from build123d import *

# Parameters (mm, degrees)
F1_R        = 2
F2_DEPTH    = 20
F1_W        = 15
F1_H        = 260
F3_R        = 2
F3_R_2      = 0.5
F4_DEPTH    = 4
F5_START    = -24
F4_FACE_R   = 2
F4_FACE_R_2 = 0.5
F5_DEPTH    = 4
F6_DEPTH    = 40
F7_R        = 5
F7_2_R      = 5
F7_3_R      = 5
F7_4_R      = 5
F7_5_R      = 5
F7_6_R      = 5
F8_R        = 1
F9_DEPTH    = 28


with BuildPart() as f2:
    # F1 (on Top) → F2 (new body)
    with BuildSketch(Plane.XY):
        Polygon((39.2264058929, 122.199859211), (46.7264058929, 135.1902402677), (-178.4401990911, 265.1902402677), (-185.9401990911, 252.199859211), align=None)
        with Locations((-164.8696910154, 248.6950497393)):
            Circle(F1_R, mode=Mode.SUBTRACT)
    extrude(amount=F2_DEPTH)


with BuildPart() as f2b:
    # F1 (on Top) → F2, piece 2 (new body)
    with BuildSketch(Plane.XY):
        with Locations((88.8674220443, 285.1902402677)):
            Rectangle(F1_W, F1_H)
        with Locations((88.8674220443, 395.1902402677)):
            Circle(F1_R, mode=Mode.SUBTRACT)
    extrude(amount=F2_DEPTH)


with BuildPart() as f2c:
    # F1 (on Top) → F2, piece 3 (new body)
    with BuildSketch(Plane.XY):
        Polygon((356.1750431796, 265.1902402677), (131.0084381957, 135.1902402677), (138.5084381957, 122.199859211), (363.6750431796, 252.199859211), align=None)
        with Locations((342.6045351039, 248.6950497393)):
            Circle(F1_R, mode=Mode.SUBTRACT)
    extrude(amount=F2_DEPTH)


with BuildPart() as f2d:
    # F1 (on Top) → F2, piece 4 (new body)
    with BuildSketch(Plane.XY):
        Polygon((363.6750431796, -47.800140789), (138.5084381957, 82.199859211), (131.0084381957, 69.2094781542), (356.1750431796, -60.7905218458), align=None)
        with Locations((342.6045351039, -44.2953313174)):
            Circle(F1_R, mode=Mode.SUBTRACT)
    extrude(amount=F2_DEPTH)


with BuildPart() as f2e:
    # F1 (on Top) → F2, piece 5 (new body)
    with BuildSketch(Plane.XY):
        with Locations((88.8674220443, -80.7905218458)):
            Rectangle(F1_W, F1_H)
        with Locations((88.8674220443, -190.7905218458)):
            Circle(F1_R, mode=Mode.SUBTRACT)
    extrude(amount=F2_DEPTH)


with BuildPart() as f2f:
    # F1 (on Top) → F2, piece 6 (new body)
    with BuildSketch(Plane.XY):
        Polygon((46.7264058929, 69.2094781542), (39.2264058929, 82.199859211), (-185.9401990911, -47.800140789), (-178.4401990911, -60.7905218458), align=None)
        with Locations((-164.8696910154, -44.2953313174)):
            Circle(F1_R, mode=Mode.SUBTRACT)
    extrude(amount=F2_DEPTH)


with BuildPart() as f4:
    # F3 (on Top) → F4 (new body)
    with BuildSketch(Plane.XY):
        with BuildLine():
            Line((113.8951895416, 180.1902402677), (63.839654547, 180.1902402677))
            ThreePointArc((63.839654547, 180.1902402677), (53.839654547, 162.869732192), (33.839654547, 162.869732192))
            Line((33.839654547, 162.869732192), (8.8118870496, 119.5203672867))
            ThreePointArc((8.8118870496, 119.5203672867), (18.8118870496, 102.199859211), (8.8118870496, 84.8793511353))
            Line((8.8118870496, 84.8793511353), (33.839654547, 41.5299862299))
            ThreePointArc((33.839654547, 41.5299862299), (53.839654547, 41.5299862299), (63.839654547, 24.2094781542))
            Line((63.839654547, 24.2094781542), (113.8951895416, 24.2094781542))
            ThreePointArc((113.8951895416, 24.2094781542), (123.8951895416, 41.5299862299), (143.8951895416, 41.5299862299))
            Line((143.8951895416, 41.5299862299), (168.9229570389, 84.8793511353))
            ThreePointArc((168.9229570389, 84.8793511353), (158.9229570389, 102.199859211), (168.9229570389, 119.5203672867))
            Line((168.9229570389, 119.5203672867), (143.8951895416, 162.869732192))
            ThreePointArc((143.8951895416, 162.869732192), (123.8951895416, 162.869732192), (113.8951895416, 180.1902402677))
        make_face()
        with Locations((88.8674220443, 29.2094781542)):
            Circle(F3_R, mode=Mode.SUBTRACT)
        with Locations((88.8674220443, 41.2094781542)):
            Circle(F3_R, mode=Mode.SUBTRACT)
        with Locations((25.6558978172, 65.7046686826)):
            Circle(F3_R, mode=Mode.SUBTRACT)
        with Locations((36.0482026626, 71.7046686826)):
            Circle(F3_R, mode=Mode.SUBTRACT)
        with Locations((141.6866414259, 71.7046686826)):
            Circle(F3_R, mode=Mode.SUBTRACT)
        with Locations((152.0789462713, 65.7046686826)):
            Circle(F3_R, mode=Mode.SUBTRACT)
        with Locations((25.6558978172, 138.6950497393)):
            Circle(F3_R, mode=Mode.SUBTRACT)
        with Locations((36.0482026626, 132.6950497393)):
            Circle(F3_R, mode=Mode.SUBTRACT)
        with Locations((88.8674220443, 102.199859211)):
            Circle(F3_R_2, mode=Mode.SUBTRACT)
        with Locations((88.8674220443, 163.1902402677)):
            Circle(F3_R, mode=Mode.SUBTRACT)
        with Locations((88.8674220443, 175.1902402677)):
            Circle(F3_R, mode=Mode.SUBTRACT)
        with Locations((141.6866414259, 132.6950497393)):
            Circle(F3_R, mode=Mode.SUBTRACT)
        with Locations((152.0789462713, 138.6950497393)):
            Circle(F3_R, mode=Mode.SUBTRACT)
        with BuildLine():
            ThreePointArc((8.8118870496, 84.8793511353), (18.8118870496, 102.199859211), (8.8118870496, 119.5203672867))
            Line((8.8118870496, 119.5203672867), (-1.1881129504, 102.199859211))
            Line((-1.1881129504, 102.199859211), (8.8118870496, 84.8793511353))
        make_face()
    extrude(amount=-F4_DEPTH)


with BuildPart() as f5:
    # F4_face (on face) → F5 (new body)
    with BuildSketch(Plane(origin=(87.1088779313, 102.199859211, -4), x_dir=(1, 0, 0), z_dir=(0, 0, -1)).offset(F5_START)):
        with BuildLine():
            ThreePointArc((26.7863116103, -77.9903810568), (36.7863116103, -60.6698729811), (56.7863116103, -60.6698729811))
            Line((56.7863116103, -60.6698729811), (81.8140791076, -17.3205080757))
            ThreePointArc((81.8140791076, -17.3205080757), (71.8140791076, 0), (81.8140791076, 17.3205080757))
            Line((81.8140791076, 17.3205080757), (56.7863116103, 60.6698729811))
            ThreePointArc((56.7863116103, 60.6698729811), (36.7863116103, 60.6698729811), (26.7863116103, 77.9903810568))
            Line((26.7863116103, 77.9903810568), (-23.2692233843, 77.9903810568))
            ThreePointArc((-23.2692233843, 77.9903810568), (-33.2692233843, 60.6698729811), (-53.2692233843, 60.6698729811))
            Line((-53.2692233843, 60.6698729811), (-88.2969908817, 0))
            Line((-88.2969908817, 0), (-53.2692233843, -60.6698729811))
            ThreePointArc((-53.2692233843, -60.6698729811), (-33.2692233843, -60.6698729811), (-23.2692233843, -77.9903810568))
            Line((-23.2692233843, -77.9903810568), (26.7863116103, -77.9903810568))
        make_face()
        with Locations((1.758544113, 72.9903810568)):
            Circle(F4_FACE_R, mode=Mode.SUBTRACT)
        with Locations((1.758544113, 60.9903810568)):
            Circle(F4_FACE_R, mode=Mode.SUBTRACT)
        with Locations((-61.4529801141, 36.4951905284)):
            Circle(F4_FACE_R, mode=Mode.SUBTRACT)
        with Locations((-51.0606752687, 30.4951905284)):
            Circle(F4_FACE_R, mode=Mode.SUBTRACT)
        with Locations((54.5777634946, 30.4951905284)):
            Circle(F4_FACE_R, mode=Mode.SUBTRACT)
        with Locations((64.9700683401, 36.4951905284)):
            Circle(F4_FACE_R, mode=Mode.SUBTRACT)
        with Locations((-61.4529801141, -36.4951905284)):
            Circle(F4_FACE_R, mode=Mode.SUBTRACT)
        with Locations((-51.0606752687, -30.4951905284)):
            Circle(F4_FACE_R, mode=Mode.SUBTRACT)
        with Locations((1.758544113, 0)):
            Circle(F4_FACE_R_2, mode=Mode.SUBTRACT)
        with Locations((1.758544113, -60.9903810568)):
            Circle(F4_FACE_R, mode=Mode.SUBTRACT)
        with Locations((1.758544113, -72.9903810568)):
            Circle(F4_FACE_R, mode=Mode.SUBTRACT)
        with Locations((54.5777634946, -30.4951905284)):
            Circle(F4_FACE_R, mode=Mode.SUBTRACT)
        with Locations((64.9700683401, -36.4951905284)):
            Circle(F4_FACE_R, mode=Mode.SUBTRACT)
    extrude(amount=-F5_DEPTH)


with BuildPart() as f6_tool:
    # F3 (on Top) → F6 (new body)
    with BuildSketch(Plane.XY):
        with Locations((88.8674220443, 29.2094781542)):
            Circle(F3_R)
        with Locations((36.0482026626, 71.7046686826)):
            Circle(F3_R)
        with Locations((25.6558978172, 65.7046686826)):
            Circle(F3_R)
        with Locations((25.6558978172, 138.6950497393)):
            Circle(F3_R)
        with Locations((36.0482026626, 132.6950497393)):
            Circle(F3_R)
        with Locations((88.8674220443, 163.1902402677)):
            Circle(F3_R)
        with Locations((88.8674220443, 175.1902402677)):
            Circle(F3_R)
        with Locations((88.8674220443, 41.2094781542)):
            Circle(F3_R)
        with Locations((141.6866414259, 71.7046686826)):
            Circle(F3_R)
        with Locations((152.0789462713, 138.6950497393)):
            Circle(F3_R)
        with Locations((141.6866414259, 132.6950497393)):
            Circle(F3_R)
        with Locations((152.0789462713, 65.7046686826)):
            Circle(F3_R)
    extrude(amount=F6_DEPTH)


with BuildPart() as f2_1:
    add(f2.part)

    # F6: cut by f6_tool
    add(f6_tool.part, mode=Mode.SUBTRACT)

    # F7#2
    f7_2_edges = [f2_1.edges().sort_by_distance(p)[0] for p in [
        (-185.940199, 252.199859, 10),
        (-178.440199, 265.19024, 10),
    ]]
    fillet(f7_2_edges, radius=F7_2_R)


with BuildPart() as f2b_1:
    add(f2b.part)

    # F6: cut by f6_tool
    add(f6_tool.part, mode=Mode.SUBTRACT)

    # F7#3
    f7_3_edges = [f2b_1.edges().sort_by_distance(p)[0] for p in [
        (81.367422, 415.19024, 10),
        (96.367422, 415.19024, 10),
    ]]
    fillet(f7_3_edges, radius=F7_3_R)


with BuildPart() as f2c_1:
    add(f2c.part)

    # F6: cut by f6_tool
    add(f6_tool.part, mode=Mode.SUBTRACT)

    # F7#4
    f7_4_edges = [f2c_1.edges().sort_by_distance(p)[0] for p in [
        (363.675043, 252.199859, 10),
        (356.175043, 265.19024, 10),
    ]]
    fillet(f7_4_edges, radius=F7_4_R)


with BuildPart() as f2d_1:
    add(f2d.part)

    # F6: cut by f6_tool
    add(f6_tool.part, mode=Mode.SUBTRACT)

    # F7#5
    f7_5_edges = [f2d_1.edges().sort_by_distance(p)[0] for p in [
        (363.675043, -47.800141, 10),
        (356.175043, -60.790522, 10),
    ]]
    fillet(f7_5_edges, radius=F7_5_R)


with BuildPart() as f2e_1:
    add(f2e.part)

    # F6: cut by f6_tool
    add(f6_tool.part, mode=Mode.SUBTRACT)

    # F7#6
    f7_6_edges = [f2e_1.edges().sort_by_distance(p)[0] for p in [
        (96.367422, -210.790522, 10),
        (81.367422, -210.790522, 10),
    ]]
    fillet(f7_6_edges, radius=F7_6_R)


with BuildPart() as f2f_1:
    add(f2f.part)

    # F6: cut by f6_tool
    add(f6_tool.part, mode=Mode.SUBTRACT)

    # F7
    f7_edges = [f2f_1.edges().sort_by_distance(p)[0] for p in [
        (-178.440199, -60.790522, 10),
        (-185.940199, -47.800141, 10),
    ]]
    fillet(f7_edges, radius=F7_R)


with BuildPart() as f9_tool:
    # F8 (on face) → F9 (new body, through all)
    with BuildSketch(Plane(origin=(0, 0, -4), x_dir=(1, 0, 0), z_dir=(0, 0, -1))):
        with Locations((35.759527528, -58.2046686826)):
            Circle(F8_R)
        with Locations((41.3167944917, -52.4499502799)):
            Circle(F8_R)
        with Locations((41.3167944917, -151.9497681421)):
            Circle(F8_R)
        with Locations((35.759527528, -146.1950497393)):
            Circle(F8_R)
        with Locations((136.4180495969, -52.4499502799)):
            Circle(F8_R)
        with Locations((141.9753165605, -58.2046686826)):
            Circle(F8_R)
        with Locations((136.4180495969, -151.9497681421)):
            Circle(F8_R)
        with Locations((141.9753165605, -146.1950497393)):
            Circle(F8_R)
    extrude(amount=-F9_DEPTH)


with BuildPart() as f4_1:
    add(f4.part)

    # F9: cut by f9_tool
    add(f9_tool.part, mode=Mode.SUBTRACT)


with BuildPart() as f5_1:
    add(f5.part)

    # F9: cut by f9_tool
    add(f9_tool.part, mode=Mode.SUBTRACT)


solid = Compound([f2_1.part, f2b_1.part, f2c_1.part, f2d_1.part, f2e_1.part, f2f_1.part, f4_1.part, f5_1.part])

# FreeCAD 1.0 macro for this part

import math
import FreeCAD as App
import Part
import Sketcher

V = App.Vector
Q = App.Units.Quantity


def edges_at(feature, points):
    """Names of the edges that pass closest to the given points."""
    edges = feature.Shape.Edges
    near = lambda p: min(range(len(edges)), key=lambda i: edges[i].distToShape(Part.Vertex(*p))[0])
    return sorted({f"Edge{near(p) + 1}" for p in points})

doc = App.newDocument("Part")
body = doc.addObject("PartDesign::Body", "Body")

sketch1 = doc.addObject("Sketcher::SketchObject", "Sketch")
body.addObject(sketch1)
sketch1.AttachmentSupport = (doc.XY_Plane, [""])
sketch1.MapMode = "FlatFace"
sketch1.addGeometry([
    Part.LineSegment(V(39.226406, 122.199859, 0), V(46.726406, 135.19024, 0)),
    Part.LineSegment(V(46.726406, 135.19024, 0), V(-178.440199, 265.19024, 0)),
    Part.LineSegment(V(-178.440199, 265.19024, 0), V(-185.940199, 252.199859, 0)),
    Part.LineSegment(V(-185.940199, 252.199859, 0), V(39.226406, 122.199859, 0)),
    Part.Circle(V(-164.869691, 248.69505, 0), V(0, 0, 1), 2),
], False)
sketch1.addConstraint([
    Sketcher.Constraint("Coincident", 0, 2, 1, 1),
    Sketcher.Constraint("Coincident", 1, 2, 2, 1),
    Sketcher.Constraint("Coincident", 2, 2, 3, 1),
    Sketcher.Constraint("Coincident", 3, 2, 0, 1),
    Sketcher.Constraint("Perpendicular", 0, 1),
    Sketcher.Constraint("Perpendicular", 1, 2),
    Sketcher.Constraint("Perpendicular", 2, 3),
    Sketcher.Constraint("Diameter", 4, Q("4 mm")),
    Sketcher.Constraint("Angle", 0, Q("60 deg")),
    Sketcher.Constraint("Distance", 0, Q("15 mm")),
    Sketcher.Constraint("Distance", 1, Q("260 mm")),
    Sketcher.Constraint("DistanceX", 1, 2, -1, 1, Q("178.440199 mm")),
    Sketcher.Constraint("DistanceX", 4, 3, -1, 1, Q("164.869691 mm")),
    Sketcher.Constraint("DistanceY", -1, 1, 4, 3, Q("248.69505 mm")),
    Sketcher.Constraint("DistanceY", -1, 1, 0, 2, Q("135.19024 mm")),
])
pad1 = doc.addObject("PartDesign::Pad", "Pad")
body.addObject(pad1)
pad1.Profile = sketch1
pad1.Length = 20
body2 = doc.addObject("PartDesign::Body", "Body001")

sketch2 = doc.addObject("Sketcher::SketchObject", "Sketch001")
body2.addObject(sketch2)
sketch2.AttachmentSupport = (doc.getObject("XY_Plane001"), [""])
sketch2.MapMode = "FlatFace"
sketch2.addGeometry([
    Part.LineSegment(V(81.367422, 415.19024, 0), V(81.367422, 155.19024, 0)),
    Part.LineSegment(V(81.367422, 155.19024, 0), V(96.367422, 155.19024, 0)),
    Part.LineSegment(V(96.367422, 155.19024, 0), V(96.367422, 415.19024, 0)),
    Part.LineSegment(V(96.367422, 415.19024, 0), V(81.367422, 415.19024, 0)),
    Part.Circle(V(88.867422, 395.19024, 0), V(0, 0, 1), 2),
], False)
sketch2.addConstraint([
    Sketcher.Constraint("Coincident", 0, 2, 1, 1),
    Sketcher.Constraint("Coincident", 1, 2, 2, 1),
    Sketcher.Constraint("Coincident", 2, 2, 3, 1),
    Sketcher.Constraint("Coincident", 3, 2, 0, 1),
    Sketcher.Constraint("Vertical", 0),
    Sketcher.Constraint("Horizontal", 1),
    Sketcher.Constraint("Vertical", 2),
    Sketcher.Constraint("Horizontal", 3),
    Sketcher.Constraint("Diameter", 4, Q("4 mm")),
    Sketcher.Constraint("DistanceX", 1, 1, 1, 2, Q("15 mm")),
    Sketcher.Constraint("DistanceY", 0, 2, 0, 1, Q("260 mm")),
    Sketcher.Constraint("DistanceY", 0, 2, 4, 3, Q("240 mm")),
    Sketcher.Constraint("DistanceX", 0, 2, 4, 3, Q("7.5 mm")),
    Sketcher.Constraint("DistanceY", -1, 1, 4, 3, Q("395.19024 mm")),
    Sketcher.Constraint("DistanceX", -1, 1, 4, 3, Q("88.867422 mm")),
])
pad2 = doc.addObject("PartDesign::Pad", "Pad001")
body2.addObject(pad2)
pad2.Profile = sketch2
pad2.Length = 20
body3 = doc.addObject("PartDesign::Body", "Body002")

sketch3 = doc.addObject("Sketcher::SketchObject", "Sketch002")
body3.addObject(sketch3)
sketch3.AttachmentSupport = (doc.getObject("XY_Plane002"), [""])
sketch3.MapMode = "FlatFace"
sketch3.addGeometry([
    Part.LineSegment(V(356.175043, 265.19024, 0), V(131.008438, 135.19024, 0)),
    Part.LineSegment(V(131.008438, 135.19024, 0), V(138.508438, 122.199859, 0)),
    Part.LineSegment(V(138.508438, 122.199859, 0), V(363.675043, 252.199859, 0)),
    Part.LineSegment(V(363.675043, 252.199859, 0), V(356.175043, 265.19024, 0)),
    Part.Circle(V(342.604535, 248.69505, 0), V(0, 0, 1), 2),
], False)
sketch3.addConstraint([
    Sketcher.Constraint("Coincident", 0, 2, 1, 1),
    Sketcher.Constraint("Coincident", 1, 2, 2, 1),
    Sketcher.Constraint("Coincident", 2, 2, 3, 1),
    Sketcher.Constraint("Coincident", 3, 2, 0, 1),
    Sketcher.Constraint("Perpendicular", 0, 1),
    Sketcher.Constraint("Perpendicular", 1, 2),
    Sketcher.Constraint("Perpendicular", 2, 3),
    Sketcher.Constraint("Diameter", 4, Q("4 mm")),
    Sketcher.Constraint("Angle", 0, Q("-150 deg")),
    Sketcher.Constraint("Distance", 0, Q("260 mm")),
    Sketcher.Constraint("Distance", 1, Q("15 mm")),
    Sketcher.Constraint("DistanceY", -1, 1, 4, 3, Q("248.69505 mm")),
    Sketcher.Constraint("DistanceX", -1, 1, 0, 2, Q("131.008438 mm")),
    Sketcher.Constraint("DistanceY", -1, 1, 0, 2, Q("135.19024 mm")),
    Sketcher.Constraint("DistanceX", 4, 3, 2, 2, Q("21.070508 mm")),
])
pad3 = doc.addObject("PartDesign::Pad", "Pad002")
body3.addObject(pad3)
pad3.Profile = sketch3
pad3.Length = 20
body4 = doc.addObject("PartDesign::Body", "Body003")

sketch4 = doc.addObject("Sketcher::SketchObject", "Sketch003")
body4.addObject(sketch4)
sketch4.AttachmentSupport = (doc.getObject("XY_Plane003"), [""])
sketch4.MapMode = "FlatFace"
sketch4.addGeometry([
    Part.LineSegment(V(363.675043, -47.800141, 0), V(138.508438, 82.199859, 0)),
    Part.LineSegment(V(138.508438, 82.199859, 0), V(131.008438, 69.209478, 0)),
    Part.LineSegment(V(131.008438, 69.209478, 0), V(356.175043, -60.790522, 0)),
    Part.LineSegment(V(356.175043, -60.790522, 0), V(363.675043, -47.800141, 0)),
    Part.Circle(V(342.604535, -44.295331, 0), V(0, 0, 1), 2),
], False)
sketch4.addConstraint([
    Sketcher.Constraint("Coincident", 0, 2, 1, 1),
    Sketcher.Constraint("Coincident", 1, 2, 2, 1),
    Sketcher.Constraint("Coincident", 2, 2, 3, 1),
    Sketcher.Constraint("Coincident", 3, 2, 0, 1),
    Sketcher.Constraint("Perpendicular", 0, 1),
    Sketcher.Constraint("Perpendicular", 1, 2),
    Sketcher.Constraint("Perpendicular", 2, 3),
    Sketcher.Constraint("Diameter", 4, Q("4 mm")),
    Sketcher.Constraint("Angle", 0, Q("150 deg")),
    Sketcher.Constraint("Distance", 0, Q("260 mm")),
    Sketcher.Constraint("Distance", 1, Q("15 mm")),
    Sketcher.Constraint("DistanceY", 4, 3, -1, 1, Q("44.295331 mm")),
    Sketcher.Constraint("DistanceX", -1, 1, 0, 2, Q("138.508438 mm")),
    Sketcher.Constraint("DistanceY", -1, 1, 0, 2, Q("82.199859 mm")),
    Sketcher.Constraint("DistanceX", 4, 3, 2, 2, Q("13.570508 mm")),
])
pad4 = doc.addObject("PartDesign::Pad", "Pad003")
body4.addObject(pad4)
pad4.Profile = sketch4
pad4.Length = 20
body5 = doc.addObject("PartDesign::Body", "Body004")

sketch5 = doc.addObject("Sketcher::SketchObject", "Sketch004")
body5.addObject(sketch5)
sketch5.AttachmentSupport = (doc.getObject("XY_Plane004"), [""])
sketch5.MapMode = "FlatFace"
sketch5.addGeometry([
    Part.LineSegment(V(81.367422, 49.209478, 0), V(81.367422, -210.790522, 0)),
    Part.LineSegment(V(81.367422, -210.790522, 0), V(96.367422, -210.790522, 0)),
    Part.LineSegment(V(96.367422, -210.790522, 0), V(96.367422, 49.209478, 0)),
    Part.LineSegment(V(96.367422, 49.209478, 0), V(81.367422, 49.209478, 0)),
    Part.Circle(V(88.867422, -190.790522, 0), V(0, 0, 1), 2),
], False)
sketch5.addConstraint([
    Sketcher.Constraint("Coincident", 0, 2, 1, 1),
    Sketcher.Constraint("Coincident", 1, 2, 2, 1),
    Sketcher.Constraint("Coincident", 2, 2, 3, 1),
    Sketcher.Constraint("Coincident", 3, 2, 0, 1),
    Sketcher.Constraint("Vertical", 0),
    Sketcher.Constraint("Horizontal", 1),
    Sketcher.Constraint("Vertical", 2),
    Sketcher.Constraint("Horizontal", 3),
    Sketcher.Constraint("Diameter", 4, Q("4 mm")),
    Sketcher.Constraint("DistanceX", 1, 1, 1, 2, Q("15 mm")),
    Sketcher.Constraint("DistanceY", 0, 2, 0, 1, Q("260 mm")),
    Sketcher.Constraint("DistanceY", 0, 2, 4, 3, Q("20 mm")),
    Sketcher.Constraint("DistanceX", 0, 2, 4, 3, Q("7.5 mm")),
    Sketcher.Constraint("DistanceY", 4, 3, -1, 1, Q("190.790522 mm")),
    Sketcher.Constraint("DistanceX", -1, 1, 4, 3, Q("88.867422 mm")),
])
pad5 = doc.addObject("PartDesign::Pad", "Pad004")
body5.addObject(pad5)
pad5.Profile = sketch5
pad5.Length = 20
body6 = doc.addObject("PartDesign::Body", "Body005")

sketch6 = doc.addObject("Sketcher::SketchObject", "Sketch005")
body6.addObject(sketch6)
sketch6.AttachmentSupport = (doc.getObject("XY_Plane005"), [""])
sketch6.MapMode = "FlatFace"
sketch6.addGeometry([
    Part.LineSegment(V(46.726406, 69.209478, 0), V(39.226406, 82.199859, 0)),
    Part.LineSegment(V(39.226406, 82.199859, 0), V(-185.940199, -47.800141, 0)),
    Part.LineSegment(V(-185.940199, -47.800141, 0), V(-178.440199, -60.790522, 0)),
    Part.LineSegment(V(-178.440199, -60.790522, 0), V(46.726406, 69.209478, 0)),
    Part.Circle(V(-164.869691, -44.295331, 0), V(0, 0, 1), 2),
], False)
sketch6.addConstraint([
    Sketcher.Constraint("Coincident", 0, 2, 1, 1),
    Sketcher.Constraint("Coincident", 1, 2, 2, 1),
    Sketcher.Constraint("Coincident", 2, 2, 3, 1),
    Sketcher.Constraint("Coincident", 3, 2, 0, 1),
    Sketcher.Constraint("Perpendicular", 0, 1),
    Sketcher.Constraint("Perpendicular", 1, 2),
    Sketcher.Constraint("Perpendicular", 2, 3),
    Sketcher.Constraint("Diameter", 4, Q("4 mm")),
    Sketcher.Constraint("Angle", 0, Q("120 deg")),
    Sketcher.Constraint("Distance", 0, Q("15 mm")),
    Sketcher.Constraint("Distance", 1, Q("260 mm")),
    Sketcher.Constraint("DistanceX", 1, 2, -1, 1, Q("185.940199 mm")),
    Sketcher.Constraint("DistanceX", 4, 3, -1, 1, Q("164.869691 mm")),
    Sketcher.Constraint("DistanceY", 4, 3, -1, 1, Q("44.295331 mm")),
    Sketcher.Constraint("DistanceY", -1, 1, 0, 2, Q("82.199859 mm")),
])
pad6 = doc.addObject("PartDesign::Pad", "Pad005")
body6.addObject(pad6)
pad6.Profile = sketch6
pad6.Length = 20
body7 = doc.addObject("PartDesign::Body", "Body006")

sketch7 = doc.addObject("Sketcher::SketchObject", "Sketch006")
body7.addObject(sketch7)
sketch7.AttachmentSupport = (doc.getObject("XY_Plane006"), [""])
sketch7.MapMode = "FlatFace"
sketch7.addGeometry([
    Part.LineSegment(V(113.89519, 180.19024, 0), V(63.839655, 180.19024, 0)),
    Part.ArcOfCircle(Part.Circle(V(43.839655, 180.19024, 0), V(0, 0, 1), 20), math.radians(-120), math.radians(0)),
    Part.LineSegment(V(33.839655, 162.869732, 0), V(8.811887, 119.520367, 0)),
    Part.LineSegment(V(8.811887, 119.520367, 0), V(-1.188113, 102.199859, 0)),
    Part.LineSegment(V(-1.188113, 102.199859, 0), V(8.811887, 84.879351, 0)),
    Part.LineSegment(V(8.811887, 84.879351, 0), V(33.839655, 41.529986, 0)),
    Part.ArcOfCircle(Part.Circle(V(43.839655, 24.209478, 0), V(0, 0, 1), 20), math.radians(0), math.radians(120)),
    Part.LineSegment(V(63.839655, 24.209478, 0), V(113.89519, 24.209478, 0)),
    Part.ArcOfCircle(Part.Circle(V(133.89519, 24.209478, 0), V(0, 0, 1), 20), math.radians(60), math.radians(180)),
    Part.LineSegment(V(143.89519, 41.529986, 0), V(168.922957, 84.879351, 0)),
    Part.ArcOfCircle(Part.Circle(V(178.922957, 102.199859, 0), V(0, 0, 1), 20), math.radians(120), math.radians(240)),
    Part.LineSegment(V(168.922957, 119.520367, 0), V(143.89519, 162.869732, 0)),
    Part.ArcOfCircle(Part.Circle(V(133.89519, 180.19024, 0), V(0, 0, 1), 20), math.radians(180), math.radians(300)),
    Part.Circle(V(25.655898, 65.704669, 0), V(0, 0, 1), 2),
    Part.Circle(V(36.048203, 71.704669, 0), V(0, 0, 1), 2),
    Part.Circle(V(88.867422, 29.209478, 0), V(0, 0, 1), 2),
    Part.Circle(V(88.867422, 41.209478, 0), V(0, 0, 1), 2),
    Part.Circle(V(141.686641, 71.704669, 0), V(0, 0, 1), 2),
    Part.Circle(V(152.078946, 65.704669, 0), V(0, 0, 1), 2),
    Part.Circle(V(25.655898, 138.69505, 0), V(0, 0, 1), 2),
    Part.Circle(V(36.048203, 132.69505, 0), V(0, 0, 1), 2),
    Part.Circle(V(88.867422, 102.199859, 0), V(0, 0, 1), 0.5),
    Part.Circle(V(141.686641, 132.69505, 0), V(0, 0, 1), 2),
    Part.Circle(V(152.078946, 138.69505, 0), V(0, 0, 1), 2),
    Part.Circle(V(88.867422, 163.19024, 0), V(0, 0, 1), 2),
    Part.Circle(V(88.867422, 175.19024, 0), V(0, 0, 1), 2),
], False)
sketch7.addConstraint([
    Sketcher.Constraint("Coincident", 0, 2, 1, 2),
    Sketcher.Constraint("Coincident", 1, 1, 2, 1),
    Sketcher.Constraint("Coincident", 2, 2, 3, 1),
    Sketcher.Constraint("Coincident", 3, 2, 4, 1),
    Sketcher.Constraint("Coincident", 4, 2, 5, 1),
    Sketcher.Constraint("Coincident", 5, 2, 6, 2),
    Sketcher.Constraint("Coincident", 6, 1, 7, 1),
    Sketcher.Constraint("Coincident", 7, 2, 8, 2),
    Sketcher.Constraint("Coincident", 8, 1, 9, 1),
    Sketcher.Constraint("Coincident", 9, 2, 10, 2),
    Sketcher.Constraint("Coincident", 10, 1, 11, 1),
    Sketcher.Constraint("Coincident", 11, 2, 12, 2),
    Sketcher.Constraint("Coincident", 12, 1, 0, 1),
    Sketcher.Constraint("Horizontal", 0),
    Sketcher.Constraint("Horizontal", 7),
    Sketcher.Constraint("Equal", 1, 6),
    Sketcher.Constraint("Equal", 6, 8),
    Sketcher.Constraint("Equal", 8, 10),
    Sketcher.Constraint("Equal", 10, 12),
    Sketcher.Constraint("Equal", 13, 14),
    Sketcher.Constraint("Equal", 14, 15),
    Sketcher.Constraint("Equal", 15, 16),
    Sketcher.Constraint("Equal", 16, 17),
    Sketcher.Constraint("Equal", 17, 18),
    Sketcher.Constraint("Equal", 18, 19),
    Sketcher.Constraint("Equal", 19, 20),
    Sketcher.Constraint("Equal", 20, 22),
    Sketcher.Constraint("Equal", 22, 23),
    Sketcher.Constraint("Equal", 23, 24),
    Sketcher.Constraint("Equal", 24, 25),
    Sketcher.Constraint("Parallel", 2, 3),
    Sketcher.Constraint("Parallel", 4, 5),
    Sketcher.Constraint("Parallel", 3, 9),
    Sketcher.Constraint("Parallel", 5, 11),
    Sketcher.Constraint("Horizontal", 6, 3, 8, 3),
    Sketcher.Constraint("Horizontal", 1, 3, 12, 3),
    Sketcher.Constraint("Horizontal", 14, 3, 17, 3),
    Sketcher.Constraint("Horizontal", 13, 3, 18, 3),
    Sketcher.Constraint("Horizontal", 10, 3, 21, 3),
    Sketcher.Constraint("Horizontal", 20, 3, 22, 3),
    Sketcher.Constraint("Horizontal", 19, 3, 23, 3),
    Sketcher.Constraint("Horizontal", 12, 3, 0, 2),
    Sketcher.Constraint("Horizontal", 21, 3, 3, 2),
    Sketcher.Constraint("Horizontal", 8, 3, 6, 1),
    Sketcher.Constraint("Horizontal", 5, 2, 8, 1),
    Sketcher.Constraint("Horizontal", 4, 2, 9, 2),
    Sketcher.Constraint("Horizontal", 2, 2, 10, 1),
    Sketcher.Constraint("Horizontal", 1, 1, 11, 2),
    Sketcher.Constraint("Vertical", 1, 3, 6, 3),
    Sketcher.Constraint("Vertical", 8, 3, 12, 3),
    Sketcher.Constraint("Vertical", 15, 3, 16, 3),
    Sketcher.Constraint("Vertical", 13, 3, 19, 3),
    Sketcher.Constraint("Vertical", 14, 3, 20, 3),
    Sketcher.Constraint("Vertical", 16, 3, 21, 3),
    Sketcher.Constraint("Vertical", 17, 3, 22, 3),
    Sketcher.Constraint("Vertical", 18, 3, 23, 3),
    Sketcher.Constraint("Vertical", 21, 3, 24, 3),
    Sketcher.Constraint("Vertical", 24, 3, 25, 3),
    Sketcher.Constraint("Vertical", 2, 2, 4, 2),
    Sketcher.Constraint("Vertical", 1, 1, 5, 2),
    Sketcher.Constraint("Diameter", 13, Q("4 mm")),
    Sketcher.Constraint("Diameter", 21, Q("1 mm")),
    Sketcher.Constraint("Radius", 1, Q("20 mm")),
    Sketcher.Constraint("Angle", 2, Q("-120 deg")),
    Sketcher.Constraint("Distance", 3, Q("20 mm")),
    Sketcher.Constraint("DistanceY", 13, 3, 14, 3, Q("6 mm")),
    Sketcher.Constraint("DistanceY", 6, 3, 15, 3, Q("5 mm")),
    Sketcher.Constraint("DistanceY", 15, 3, 16, 3, Q("12 mm")),
    Sketcher.Constraint("DistanceY", 20, 3, 19, 3, Q("6 mm")),
    Sketcher.Constraint("DistanceY", 24, 3, 1, 3, Q("17 mm")),
    Sketcher.Constraint("DistanceY", 24, 3, 25, 3, Q("12 mm")),
    Sketcher.Constraint("DistanceX", 1, 1, 1, 3, Q("10 mm")),
    Sketcher.Constraint("DistanceY", 14, 3, 2, 2, Q("47.815699 mm")),
    Sketcher.Constraint("DistanceY", 4, 2, 20, 3, Q("47.815699 mm")),
    Sketcher.Constraint("DistanceX", 0, 2, 0, 1, Q("50.055535 mm")),
    Sketcher.Constraint("DistanceY", -1, 1, 1, 3, Q("180.19024 mm")),
    Sketcher.Constraint("DistanceY", -1, 1, 6, 3, Q("24.209478 mm")),
    Sketcher.Constraint("DistanceX", -1, 1, 8, 3, Q("133.89519 mm")),
    Sketcher.Constraint("DistanceX", -1, 1, 17, 3, Q("141.686641 mm")),
    Sketcher.Constraint("DistanceX", 13, 3, 8, 3, Q("108.239292 mm")),
    Sketcher.Constraint("DistanceX", 14, 3, 6, 3, Q("7.791452 mm")),
    Sketcher.Constraint("DistanceX", 14, 3, 15, 3, Q("52.819219 mm")),
    Sketcher.Constraint("DistanceX", 18, 3, 10, 3, Q("26.844011 mm")),
])
pad7 = doc.addObject("PartDesign::Pad", "Pad006")
body7.addObject(pad7)
pad7.Profile = sketch7
pad7.Length = 4
pad7.Reversed = True
body8 = doc.addObject("PartDesign::Body", "Body007")

sketch8 = doc.addObject("Sketcher::SketchObject", "Sketch007")
body8.addObject(sketch8)
sketch8.AttachmentSupport = (doc.getObject("XY_Plane007"), [""])
sketch8.MapMode = "FlatFace"
sketch8.AttachmentOffset = App.Placement(V(0, 0, 20), App.Rotation())
sketch8.addGeometry([
    Part.ArcOfCircle(Part.Circle(V(133.89519, 180.19024, 0), V(0, 0, 1), 20), math.radians(180), math.radians(300)),
    Part.LineSegment(V(143.89519, 162.869732, 0), V(168.922957, 119.520367, 0)),
    Part.ArcOfCircle(Part.Circle(V(178.922957, 102.199859, 0), V(0, 0, 1), 20), math.radians(120), math.radians(240)),
    Part.LineSegment(V(168.922957, 84.879351, 0), V(143.89519, 41.529986, 0)),
    Part.ArcOfCircle(Part.Circle(V(133.89519, 24.209478, 0), V(0, 0, 1), 20), math.radians(60), math.radians(180)),
    Part.LineSegment(V(113.89519, 24.209478, 0), V(63.839655, 24.209478, 0)),
    Part.ArcOfCircle(Part.Circle(V(43.839655, 24.209478, 0), V(0, 0, 1), 20), math.radians(0), math.radians(120)),
    Part.LineSegment(V(33.839655, 41.529986, 0), V(-1.188113, 102.199859, 0)),
    Part.LineSegment(V(-1.188113, 102.199859, 0), V(33.839655, 162.869732, 0)),
    Part.ArcOfCircle(Part.Circle(V(43.839655, 180.19024, 0), V(0, 0, 1), 20), math.radians(-120), math.radians(0)),
    Part.LineSegment(V(63.839655, 180.19024, 0), V(113.89519, 180.19024, 0)),
    Part.Circle(V(25.655898, 138.69505, 0), V(0, 0, 1), 2),
    Part.Circle(V(36.048203, 132.69505, 0), V(0, 0, 1), 2),
    Part.Circle(V(88.867422, 175.19024, 0), V(0, 0, 1), 2),
    Part.Circle(V(88.867422, 163.19024, 0), V(0, 0, 1), 2),
    Part.Circle(V(141.686641, 132.69505, 0), V(0, 0, 1), 2),
    Part.Circle(V(152.078946, 138.69505, 0), V(0, 0, 1), 2),
    Part.Circle(V(25.655898, 65.704669, 0), V(0, 0, 1), 2),
    Part.Circle(V(36.048203, 71.704669, 0), V(0, 0, 1), 2),
    Part.Circle(V(88.867422, 102.199859, 0), V(0, 0, 1), 0.5),
    Part.Circle(V(141.686641, 71.704669, 0), V(0, 0, 1), 2),
    Part.Circle(V(152.078946, 65.704669, 0), V(0, 0, 1), 2),
    Part.Circle(V(88.867422, 41.209478, 0), V(0, 0, 1), 2),
    Part.Circle(V(88.867422, 29.209478, 0), V(0, 0, 1), 2),
], False)
sketch8.addConstraint([
    Sketcher.Constraint("Coincident", 0, 2, 1, 1),
    Sketcher.Constraint("Coincident", 1, 2, 2, 1),
    Sketcher.Constraint("Coincident", 2, 2, 3, 1),
    Sketcher.Constraint("Coincident", 3, 2, 4, 1),
    Sketcher.Constraint("Coincident", 4, 2, 5, 1),
    Sketcher.Constraint("Coincident", 5, 2, 6, 1),
    Sketcher.Constraint("Coincident", 6, 2, 7, 1),
    Sketcher.Constraint("Coincident", 7, 2, 8, 1),
    Sketcher.Constraint("Coincident", 8, 2, 9, 1),
    Sketcher.Constraint("Coincident", 9, 2, 10, 1),
    Sketcher.Constraint("Coincident", 10, 2, 0, 1),
    Sketcher.Constraint("Horizontal", 5),
    Sketcher.Constraint("Horizontal", 10),
    Sketcher.Constraint("Equal", 0, 2),
    Sketcher.Constraint("Equal", 2, 4),
    Sketcher.Constraint("Equal", 4, 6),
    Sketcher.Constraint("Equal", 6, 9),
    Sketcher.Constraint("Equal", 11, 12),
    Sketcher.Constraint("Equal", 12, 13),
    Sketcher.Constraint("Equal", 13, 14),
    Sketcher.Constraint("Equal", 14, 15),
    Sketcher.Constraint("Equal", 15, 16),
    Sketcher.Constraint("Equal", 16, 17),
    Sketcher.Constraint("Equal", 17, 18),
    Sketcher.Constraint("Equal", 18, 20),
    Sketcher.Constraint("Equal", 20, 21),
    Sketcher.Constraint("Equal", 21, 22),
    Sketcher.Constraint("Equal", 22, 23),
    Sketcher.Constraint("Parallel", 1, 7),
    Sketcher.Constraint("Parallel", 3, 8),
    Sketcher.Constraint("Horizontal", 4, 3, 6, 3),
    Sketcher.Constraint("Horizontal", 0, 3, 9, 3),
    Sketcher.Constraint("Horizontal", 12, 3, 15, 3),
    Sketcher.Constraint("Horizontal", 11, 3, 16, 3),
    Sketcher.Constraint("Horizontal", 2, 3, 19, 3),
    Sketcher.Constraint("Horizontal", 18, 3, 20, 3),
    Sketcher.Constraint("Horizontal", 17, 3, 21, 3),
    Sketcher.Constraint("Horizontal", 6, 3, 4, 2),
    Sketcher.Constraint("Horizontal", 3, 2, 6, 2),
    Sketcher.Constraint("Horizontal", 19, 3, 7, 2),
    Sketcher.Constraint("Horizontal", 0, 2, 8, 2),
    Sketcher.Constraint("Horizontal", 0, 3, 9, 2),
    Sketcher.Constraint("Vertical", 0, 3, 4, 3),
    Sketcher.Constraint("Vertical", 6, 3, 9, 3),
    Sketcher.Constraint("Vertical", 13, 3, 14, 3),
    Sketcher.Constraint("Vertical", 11, 3, 17, 3),
    Sketcher.Constraint("Vertical", 12, 3, 18, 3),
    Sketcher.Constraint("Vertical", 14, 3, 19, 3),
    Sketcher.Constraint("Vertical", 15, 3, 20, 3),
    Sketcher.Constraint("Vertical", 16, 3, 21, 3),
    Sketcher.Constraint("Vertical", 19, 3, 22, 3),
    Sketcher.Constraint("Vertical", 22, 3, 23, 3),
    Sketcher.Constraint("Vertical", 1, 2, 2, 2),
    Sketcher.Constraint("Vertical", 0, 2, 3, 2),
    Sketcher.Constraint("Diameter", 11, Q("4 mm")),
    Sketcher.Constraint("Diameter", 19, Q("1 mm")),
    Sketcher.Constraint("Radius", 0, Q("20 mm")),
    Sketcher.Constraint("Angle", 1, Q("-60 deg")),
    Sketcher.Constraint("DistanceY", 12, 3, 11, 3, Q("6 mm")),
    Sketcher.Constraint("DistanceY", 13, 3, 9, 3, Q("5 mm")),
    Sketcher.Constraint("DistanceY", 14, 3, 13, 3, Q("12 mm")),
    Sketcher.Constraint("DistanceY", 17, 3, 18, 3, Q("6 mm")),
    Sketcher.Constraint("DistanceY", 6, 3, 22, 3, Q("17 mm")),
    Sketcher.Constraint("DistanceY", 23, 3, 22, 3, Q("12 mm")),
    Sketcher.Constraint("DistanceX", 0, 3, 0, 2, Q("10 mm")),
    Sketcher.Constraint("DistanceX", 1, 2, 2, 3, Q("10 mm")),
    Sketcher.Constraint("DistanceY", 20, 3, 1, 2, Q("47.815699 mm")),
    Sketcher.Constraint("DistanceY", 2, 2, 15, 3, Q("47.815699 mm")),
    Sketcher.Constraint("DistanceX", 5, 2, 5, 1, Q("50.055535 mm")),
    Sketcher.Constraint("DistanceX", -1, 1, 0, 3, Q("133.89519 mm")),
    Sketcher.Constraint("DistanceY", -1, 1, 0, 3, Q("180.19024 mm")),
    Sketcher.Constraint("DistanceY", -1, 1, 2, 3, Q("102.199859 mm")),
    Sketcher.Constraint("DistanceX", -1, 1, 15, 3, Q("141.686641 mm")),
    Sketcher.Constraint("DistanceX", 11, 3, 0, 3, Q("108.239292 mm")),
    Sketcher.Constraint("DistanceX", 12, 3, 9, 3, Q("7.791452 mm")),
    Sketcher.Constraint("DistanceX", 12, 3, 13, 3, Q("52.819219 mm")),
    Sketcher.Constraint("DistanceX", 16, 3, 2, 3, Q("26.844011 mm")),
])
pad8 = doc.addObject("PartDesign::Pad", "Pad007")
body8.addObject(pad8)
pad8.Profile = sketch8
pad8.Length = 4
body9 = doc.addObject("PartDesign::Body", "Body008")
body9.AllowCompound = True

sketch9 = doc.addObject("Sketcher::SketchObject", "Sketch008")
body9.addObject(sketch9)
sketch9.AttachmentSupport = (doc.getObject("XY_Plane008"), [""])
sketch9.MapMode = "FlatFace"
sketch9.addGeometry([
    Part.Circle(V(88.867422, 29.209478, 0), V(0, 0, 1), 2),
    Part.Circle(V(36.048203, 71.704669, 0), V(0, 0, 1), 2),
    Part.Circle(V(25.655898, 65.704669, 0), V(0, 0, 1), 2),
    Part.Circle(V(25.655898, 138.69505, 0), V(0, 0, 1), 2),
    Part.Circle(V(36.048203, 132.69505, 0), V(0, 0, 1), 2),
    Part.Circle(V(88.867422, 163.19024, 0), V(0, 0, 1), 2),
    Part.Circle(V(88.867422, 175.19024, 0), V(0, 0, 1), 2),
    Part.Circle(V(88.867422, 41.209478, 0), V(0, 0, 1), 2),
    Part.Circle(V(141.686641, 71.704669, 0), V(0, 0, 1), 2),
    Part.Circle(V(152.078946, 138.69505, 0), V(0, 0, 1), 2),
    Part.Circle(V(141.686641, 132.69505, 0), V(0, 0, 1), 2),
    Part.Circle(V(152.078946, 65.704669, 0), V(0, 0, 1), 2),
], False)
sketch9.addConstraint([
    Sketcher.Constraint("Equal", 0, 1),
    Sketcher.Constraint("Equal", 1, 2),
    Sketcher.Constraint("Equal", 2, 3),
    Sketcher.Constraint("Equal", 3, 4),
    Sketcher.Constraint("Equal", 4, 5),
    Sketcher.Constraint("Equal", 5, 6),
    Sketcher.Constraint("Equal", 6, 7),
    Sketcher.Constraint("Equal", 7, 8),
    Sketcher.Constraint("Equal", 8, 9),
    Sketcher.Constraint("Equal", 9, 10),
    Sketcher.Constraint("Equal", 10, 11),
    Sketcher.Constraint("Horizontal", 1, 3, 8, 3),
    Sketcher.Constraint("Horizontal", 3, 3, 9, 3),
    Sketcher.Constraint("Horizontal", 4, 3, 10, 3),
    Sketcher.Constraint("Horizontal", 2, 3, 11, 3),
    Sketcher.Constraint("Vertical", 2, 3, 3, 3),
    Sketcher.Constraint("Vertical", 1, 3, 4, 3),
    Sketcher.Constraint("Vertical", 0, 3, 5, 3),
    Sketcher.Constraint("Vertical", 5, 3, 6, 3),
    Sketcher.Constraint("Vertical", 6, 3, 7, 3),
    Sketcher.Constraint("Vertical", 8, 3, 10, 3),
    Sketcher.Constraint("Vertical", 9, 3, 11, 3),
    Sketcher.Constraint("Diameter", 0, Q("4 mm")),
    Sketcher.Constraint("DistanceY", 2, 3, 1, 3, Q("6 mm")),
    Sketcher.Constraint("DistanceY", 4, 3, 3, 3, Q("6 mm")),
    Sketcher.Constraint("DistanceY", 5, 3, 6, 3, Q("12 mm")),
    Sketcher.Constraint("DistanceY", 0, 3, 7, 3, Q("12 mm")),
    Sketcher.Constraint("DistanceY", -1, 1, 0, 3, Q("29.209478 mm")),
    Sketcher.Constraint("DistanceY", -1, 1, 1, 3, Q("71.704669 mm")),
    Sketcher.Constraint("DistanceY", -1, 1, 3, 3, Q("138.69505 mm")),
    Sketcher.Constraint("DistanceY", -1, 1, 5, 3, Q("163.19024 mm")),
    Sketcher.Constraint("DistanceX", -1, 1, 8, 3, Q("141.686641 mm")),
    Sketcher.Constraint("DistanceX", 1, 3, 0, 3, Q("52.819219 mm")),
    Sketcher.Constraint("DistanceX", 7, 3, 8, 3, Q("52.819219 mm")),
    Sketcher.Constraint("DistanceX", -1, 1, 2, 3, Q("25.655898 mm")),
    Sketcher.Constraint("DistanceX", -1, 1, 9, 3, Q("152.078946 mm")),
])
pad9 = doc.addObject("PartDesign::Pad", "Pad008")
body9.addObject(pad9)
pad9.Profile = sketch9
pad9.Length = 40
doc.recompute()

body10 = doc.addObject("PartDesign::Body", "Body009")
body10.BaseFeature = body9
boolean = doc.addObject("PartDesign::Boolean", "Boolean")
body.addObject(boolean)
boolean.Type = "Cut"
boolean.addObjects([body10])
doc.recompute()

fillet = doc.addObject("PartDesign::Fillet", "Fillet")
body.addObject(fillet)
fillet.Base = (boolean, edges_at(boolean, [(-185.94, 252.2, 10), (-178.44, 265.19, 10)]))
fillet.Radius = 5
doc.recompute()

body11 = doc.addObject("PartDesign::Body", "Body010")
body11.BaseFeature = body9
boolean2 = doc.addObject("PartDesign::Boolean", "Boolean001")
body2.addObject(boolean2)
boolean2.Type = "Cut"
boolean2.addObjects([body11])
doc.recompute()

fillet2 = doc.addObject("PartDesign::Fillet", "Fillet001")
body2.addObject(fillet2)
fillet2.Base = (boolean2, edges_at(boolean2, [(81.367, 415.19, 10), (96.367, 415.19, 10)]))
fillet2.Radius = 5
doc.recompute()

body12 = doc.addObject("PartDesign::Body", "Body011")
body12.BaseFeature = body9
boolean3 = doc.addObject("PartDesign::Boolean", "Boolean002")
body3.addObject(boolean3)
boolean3.Type = "Cut"
boolean3.addObjects([body12])
doc.recompute()

fillet3 = doc.addObject("PartDesign::Fillet", "Fillet002")
body3.addObject(fillet3)
fillet3.Base = (boolean3, edges_at(boolean3, [(363.675, 252.2, 10), (356.175, 265.19, 10)]))
fillet3.Radius = 5
doc.recompute()

body13 = doc.addObject("PartDesign::Body", "Body012")
body13.BaseFeature = body9
boolean4 = doc.addObject("PartDesign::Boolean", "Boolean003")
body4.addObject(boolean4)
boolean4.Type = "Cut"
boolean4.addObjects([body13])
doc.recompute()

fillet4 = doc.addObject("PartDesign::Fillet", "Fillet003")
body4.addObject(fillet4)
fillet4.Base = (boolean4, edges_at(boolean4, [(363.675, -47.8, 10), (356.175, -60.791, 10)]))
fillet4.Radius = 5
doc.recompute()

body14 = doc.addObject("PartDesign::Body", "Body013")
body14.BaseFeature = body9
boolean5 = doc.addObject("PartDesign::Boolean", "Boolean004")
body5.addObject(boolean5)
boolean5.Type = "Cut"
boolean5.addObjects([body14])
doc.recompute()

fillet5 = doc.addObject("PartDesign::Fillet", "Fillet004")
body5.addObject(fillet5)
fillet5.Base = (boolean5, edges_at(boolean5, [(96.367, -210.791, 10), (81.367, -210.791, 10)]))
fillet5.Radius = 5
doc.recompute()

boolean6 = doc.addObject("PartDesign::Boolean", "Boolean005")
body6.addObject(boolean6)
boolean6.Type = "Cut"
boolean6.addObjects([body9])
doc.recompute()

fillet6 = doc.addObject("PartDesign::Fillet", "Fillet005")
body6.addObject(fillet6)
fillet6.Base = (boolean6, edges_at(boolean6, [(-178.44, -60.791, 10), (-185.94, -47.8, 10)]))
fillet6.Radius = 5
body15 = doc.addObject("PartDesign::Body", "Body014")
body15.AllowCompound = True

sketch10 = doc.addObject("Sketcher::SketchObject", "Sketch009")
body15.addObject(sketch10)
sketch10.AttachmentSupport = (doc.getObject("XY_Plane014"), [""])
sketch10.MapMode = "FlatFace"
sketch10.AttachmentOffset = App.Placement(V(0, 0, -4), App.Rotation())
sketch10.addGeometry([
    Part.Circle(V(35.759528, 58.204669, 0), V(0, 0, 1), 1),
    Part.Circle(V(41.316794, 52.44995, 0), V(0, 0, 1), 1),
    Part.Circle(V(41.316794, 151.949768, 0), V(0, 0, 1), 1),
    Part.Circle(V(35.759528, 146.19505, 0), V(0, 0, 1), 1),
    Part.Circle(V(136.41805, 52.44995, 0), V(0, 0, 1), 1),
    Part.Circle(V(141.975317, 58.204669, 0), V(0, 0, 1), 1),
    Part.Circle(V(136.41805, 151.949768, 0), V(0, 0, 1), 1),
    Part.Circle(V(141.975317, 146.19505, 0), V(0, 0, 1), 1),
], False)
sketch10.addConstraint([
    Sketcher.Constraint("Equal", 0, 1),
    Sketcher.Constraint("Equal", 1, 2),
    Sketcher.Constraint("Equal", 2, 3),
    Sketcher.Constraint("Equal", 3, 4),
    Sketcher.Constraint("Equal", 4, 5),
    Sketcher.Constraint("Equal", 5, 6),
    Sketcher.Constraint("Equal", 6, 7),
    Sketcher.Constraint("Horizontal", 1, 3, 4, 3),
    Sketcher.Constraint("Horizontal", 0, 3, 5, 3),
    Sketcher.Constraint("Horizontal", 2, 3, 6, 3),
    Sketcher.Constraint("Horizontal", 3, 3, 7, 3),
    Sketcher.Constraint("Vertical", 1, 3, 2, 3),
    Sketcher.Constraint("Vertical", 0, 3, 3, 3),
    Sketcher.Constraint("Vertical", 4, 3, 6, 3),
    Sketcher.Constraint("Vertical", 5, 3, 7, 3),
    Sketcher.Constraint("Diameter", 0, Q("2 mm")),
    Sketcher.Constraint("DistanceY", 0, 3, 2, 3, Q("93.745099 mm")),
    Sketcher.Constraint("DistanceY", 1, 3, 3, 3, Q("93.745099 mm")),
    Sketcher.Constraint("DistanceY", -1, 1, 0, 3, Q("58.204669 mm")),
    Sketcher.Constraint("DistanceY", -1, 1, 1, 3, Q("52.44995 mm")),
    Sketcher.Constraint("DistanceX", -1, 1, 4, 3, Q("136.41805 mm")),
    Sketcher.Constraint("DistanceX", 0, 3, 5, 3, Q("106.215789 mm")),
    Sketcher.Constraint("DistanceX", -1, 1, 0, 3, Q("35.759528 mm")),
    Sketcher.Constraint("DistanceX", -1, 1, 1, 3, Q("41.316794 mm")),
])
pad10 = doc.addObject("PartDesign::Pad", "Pad009")
body15.addObject(pad10)
pad10.Profile = sketch10
pad10.Length = 28
doc.recompute()

body16 = doc.addObject("PartDesign::Body", "Body015")
body16.BaseFeature = body15
boolean7 = doc.addObject("PartDesign::Boolean", "Boolean006")
body7.addObject(boolean7)
boolean7.Type = "Cut"
boolean7.addObjects([body16])
doc.recompute()

boolean8 = doc.addObject("PartDesign::Boolean", "Boolean007")
body8.addObject(boolean8)
boolean8.Type = "Cut"
boolean8.addObjects([body15])

doc.recompute()
